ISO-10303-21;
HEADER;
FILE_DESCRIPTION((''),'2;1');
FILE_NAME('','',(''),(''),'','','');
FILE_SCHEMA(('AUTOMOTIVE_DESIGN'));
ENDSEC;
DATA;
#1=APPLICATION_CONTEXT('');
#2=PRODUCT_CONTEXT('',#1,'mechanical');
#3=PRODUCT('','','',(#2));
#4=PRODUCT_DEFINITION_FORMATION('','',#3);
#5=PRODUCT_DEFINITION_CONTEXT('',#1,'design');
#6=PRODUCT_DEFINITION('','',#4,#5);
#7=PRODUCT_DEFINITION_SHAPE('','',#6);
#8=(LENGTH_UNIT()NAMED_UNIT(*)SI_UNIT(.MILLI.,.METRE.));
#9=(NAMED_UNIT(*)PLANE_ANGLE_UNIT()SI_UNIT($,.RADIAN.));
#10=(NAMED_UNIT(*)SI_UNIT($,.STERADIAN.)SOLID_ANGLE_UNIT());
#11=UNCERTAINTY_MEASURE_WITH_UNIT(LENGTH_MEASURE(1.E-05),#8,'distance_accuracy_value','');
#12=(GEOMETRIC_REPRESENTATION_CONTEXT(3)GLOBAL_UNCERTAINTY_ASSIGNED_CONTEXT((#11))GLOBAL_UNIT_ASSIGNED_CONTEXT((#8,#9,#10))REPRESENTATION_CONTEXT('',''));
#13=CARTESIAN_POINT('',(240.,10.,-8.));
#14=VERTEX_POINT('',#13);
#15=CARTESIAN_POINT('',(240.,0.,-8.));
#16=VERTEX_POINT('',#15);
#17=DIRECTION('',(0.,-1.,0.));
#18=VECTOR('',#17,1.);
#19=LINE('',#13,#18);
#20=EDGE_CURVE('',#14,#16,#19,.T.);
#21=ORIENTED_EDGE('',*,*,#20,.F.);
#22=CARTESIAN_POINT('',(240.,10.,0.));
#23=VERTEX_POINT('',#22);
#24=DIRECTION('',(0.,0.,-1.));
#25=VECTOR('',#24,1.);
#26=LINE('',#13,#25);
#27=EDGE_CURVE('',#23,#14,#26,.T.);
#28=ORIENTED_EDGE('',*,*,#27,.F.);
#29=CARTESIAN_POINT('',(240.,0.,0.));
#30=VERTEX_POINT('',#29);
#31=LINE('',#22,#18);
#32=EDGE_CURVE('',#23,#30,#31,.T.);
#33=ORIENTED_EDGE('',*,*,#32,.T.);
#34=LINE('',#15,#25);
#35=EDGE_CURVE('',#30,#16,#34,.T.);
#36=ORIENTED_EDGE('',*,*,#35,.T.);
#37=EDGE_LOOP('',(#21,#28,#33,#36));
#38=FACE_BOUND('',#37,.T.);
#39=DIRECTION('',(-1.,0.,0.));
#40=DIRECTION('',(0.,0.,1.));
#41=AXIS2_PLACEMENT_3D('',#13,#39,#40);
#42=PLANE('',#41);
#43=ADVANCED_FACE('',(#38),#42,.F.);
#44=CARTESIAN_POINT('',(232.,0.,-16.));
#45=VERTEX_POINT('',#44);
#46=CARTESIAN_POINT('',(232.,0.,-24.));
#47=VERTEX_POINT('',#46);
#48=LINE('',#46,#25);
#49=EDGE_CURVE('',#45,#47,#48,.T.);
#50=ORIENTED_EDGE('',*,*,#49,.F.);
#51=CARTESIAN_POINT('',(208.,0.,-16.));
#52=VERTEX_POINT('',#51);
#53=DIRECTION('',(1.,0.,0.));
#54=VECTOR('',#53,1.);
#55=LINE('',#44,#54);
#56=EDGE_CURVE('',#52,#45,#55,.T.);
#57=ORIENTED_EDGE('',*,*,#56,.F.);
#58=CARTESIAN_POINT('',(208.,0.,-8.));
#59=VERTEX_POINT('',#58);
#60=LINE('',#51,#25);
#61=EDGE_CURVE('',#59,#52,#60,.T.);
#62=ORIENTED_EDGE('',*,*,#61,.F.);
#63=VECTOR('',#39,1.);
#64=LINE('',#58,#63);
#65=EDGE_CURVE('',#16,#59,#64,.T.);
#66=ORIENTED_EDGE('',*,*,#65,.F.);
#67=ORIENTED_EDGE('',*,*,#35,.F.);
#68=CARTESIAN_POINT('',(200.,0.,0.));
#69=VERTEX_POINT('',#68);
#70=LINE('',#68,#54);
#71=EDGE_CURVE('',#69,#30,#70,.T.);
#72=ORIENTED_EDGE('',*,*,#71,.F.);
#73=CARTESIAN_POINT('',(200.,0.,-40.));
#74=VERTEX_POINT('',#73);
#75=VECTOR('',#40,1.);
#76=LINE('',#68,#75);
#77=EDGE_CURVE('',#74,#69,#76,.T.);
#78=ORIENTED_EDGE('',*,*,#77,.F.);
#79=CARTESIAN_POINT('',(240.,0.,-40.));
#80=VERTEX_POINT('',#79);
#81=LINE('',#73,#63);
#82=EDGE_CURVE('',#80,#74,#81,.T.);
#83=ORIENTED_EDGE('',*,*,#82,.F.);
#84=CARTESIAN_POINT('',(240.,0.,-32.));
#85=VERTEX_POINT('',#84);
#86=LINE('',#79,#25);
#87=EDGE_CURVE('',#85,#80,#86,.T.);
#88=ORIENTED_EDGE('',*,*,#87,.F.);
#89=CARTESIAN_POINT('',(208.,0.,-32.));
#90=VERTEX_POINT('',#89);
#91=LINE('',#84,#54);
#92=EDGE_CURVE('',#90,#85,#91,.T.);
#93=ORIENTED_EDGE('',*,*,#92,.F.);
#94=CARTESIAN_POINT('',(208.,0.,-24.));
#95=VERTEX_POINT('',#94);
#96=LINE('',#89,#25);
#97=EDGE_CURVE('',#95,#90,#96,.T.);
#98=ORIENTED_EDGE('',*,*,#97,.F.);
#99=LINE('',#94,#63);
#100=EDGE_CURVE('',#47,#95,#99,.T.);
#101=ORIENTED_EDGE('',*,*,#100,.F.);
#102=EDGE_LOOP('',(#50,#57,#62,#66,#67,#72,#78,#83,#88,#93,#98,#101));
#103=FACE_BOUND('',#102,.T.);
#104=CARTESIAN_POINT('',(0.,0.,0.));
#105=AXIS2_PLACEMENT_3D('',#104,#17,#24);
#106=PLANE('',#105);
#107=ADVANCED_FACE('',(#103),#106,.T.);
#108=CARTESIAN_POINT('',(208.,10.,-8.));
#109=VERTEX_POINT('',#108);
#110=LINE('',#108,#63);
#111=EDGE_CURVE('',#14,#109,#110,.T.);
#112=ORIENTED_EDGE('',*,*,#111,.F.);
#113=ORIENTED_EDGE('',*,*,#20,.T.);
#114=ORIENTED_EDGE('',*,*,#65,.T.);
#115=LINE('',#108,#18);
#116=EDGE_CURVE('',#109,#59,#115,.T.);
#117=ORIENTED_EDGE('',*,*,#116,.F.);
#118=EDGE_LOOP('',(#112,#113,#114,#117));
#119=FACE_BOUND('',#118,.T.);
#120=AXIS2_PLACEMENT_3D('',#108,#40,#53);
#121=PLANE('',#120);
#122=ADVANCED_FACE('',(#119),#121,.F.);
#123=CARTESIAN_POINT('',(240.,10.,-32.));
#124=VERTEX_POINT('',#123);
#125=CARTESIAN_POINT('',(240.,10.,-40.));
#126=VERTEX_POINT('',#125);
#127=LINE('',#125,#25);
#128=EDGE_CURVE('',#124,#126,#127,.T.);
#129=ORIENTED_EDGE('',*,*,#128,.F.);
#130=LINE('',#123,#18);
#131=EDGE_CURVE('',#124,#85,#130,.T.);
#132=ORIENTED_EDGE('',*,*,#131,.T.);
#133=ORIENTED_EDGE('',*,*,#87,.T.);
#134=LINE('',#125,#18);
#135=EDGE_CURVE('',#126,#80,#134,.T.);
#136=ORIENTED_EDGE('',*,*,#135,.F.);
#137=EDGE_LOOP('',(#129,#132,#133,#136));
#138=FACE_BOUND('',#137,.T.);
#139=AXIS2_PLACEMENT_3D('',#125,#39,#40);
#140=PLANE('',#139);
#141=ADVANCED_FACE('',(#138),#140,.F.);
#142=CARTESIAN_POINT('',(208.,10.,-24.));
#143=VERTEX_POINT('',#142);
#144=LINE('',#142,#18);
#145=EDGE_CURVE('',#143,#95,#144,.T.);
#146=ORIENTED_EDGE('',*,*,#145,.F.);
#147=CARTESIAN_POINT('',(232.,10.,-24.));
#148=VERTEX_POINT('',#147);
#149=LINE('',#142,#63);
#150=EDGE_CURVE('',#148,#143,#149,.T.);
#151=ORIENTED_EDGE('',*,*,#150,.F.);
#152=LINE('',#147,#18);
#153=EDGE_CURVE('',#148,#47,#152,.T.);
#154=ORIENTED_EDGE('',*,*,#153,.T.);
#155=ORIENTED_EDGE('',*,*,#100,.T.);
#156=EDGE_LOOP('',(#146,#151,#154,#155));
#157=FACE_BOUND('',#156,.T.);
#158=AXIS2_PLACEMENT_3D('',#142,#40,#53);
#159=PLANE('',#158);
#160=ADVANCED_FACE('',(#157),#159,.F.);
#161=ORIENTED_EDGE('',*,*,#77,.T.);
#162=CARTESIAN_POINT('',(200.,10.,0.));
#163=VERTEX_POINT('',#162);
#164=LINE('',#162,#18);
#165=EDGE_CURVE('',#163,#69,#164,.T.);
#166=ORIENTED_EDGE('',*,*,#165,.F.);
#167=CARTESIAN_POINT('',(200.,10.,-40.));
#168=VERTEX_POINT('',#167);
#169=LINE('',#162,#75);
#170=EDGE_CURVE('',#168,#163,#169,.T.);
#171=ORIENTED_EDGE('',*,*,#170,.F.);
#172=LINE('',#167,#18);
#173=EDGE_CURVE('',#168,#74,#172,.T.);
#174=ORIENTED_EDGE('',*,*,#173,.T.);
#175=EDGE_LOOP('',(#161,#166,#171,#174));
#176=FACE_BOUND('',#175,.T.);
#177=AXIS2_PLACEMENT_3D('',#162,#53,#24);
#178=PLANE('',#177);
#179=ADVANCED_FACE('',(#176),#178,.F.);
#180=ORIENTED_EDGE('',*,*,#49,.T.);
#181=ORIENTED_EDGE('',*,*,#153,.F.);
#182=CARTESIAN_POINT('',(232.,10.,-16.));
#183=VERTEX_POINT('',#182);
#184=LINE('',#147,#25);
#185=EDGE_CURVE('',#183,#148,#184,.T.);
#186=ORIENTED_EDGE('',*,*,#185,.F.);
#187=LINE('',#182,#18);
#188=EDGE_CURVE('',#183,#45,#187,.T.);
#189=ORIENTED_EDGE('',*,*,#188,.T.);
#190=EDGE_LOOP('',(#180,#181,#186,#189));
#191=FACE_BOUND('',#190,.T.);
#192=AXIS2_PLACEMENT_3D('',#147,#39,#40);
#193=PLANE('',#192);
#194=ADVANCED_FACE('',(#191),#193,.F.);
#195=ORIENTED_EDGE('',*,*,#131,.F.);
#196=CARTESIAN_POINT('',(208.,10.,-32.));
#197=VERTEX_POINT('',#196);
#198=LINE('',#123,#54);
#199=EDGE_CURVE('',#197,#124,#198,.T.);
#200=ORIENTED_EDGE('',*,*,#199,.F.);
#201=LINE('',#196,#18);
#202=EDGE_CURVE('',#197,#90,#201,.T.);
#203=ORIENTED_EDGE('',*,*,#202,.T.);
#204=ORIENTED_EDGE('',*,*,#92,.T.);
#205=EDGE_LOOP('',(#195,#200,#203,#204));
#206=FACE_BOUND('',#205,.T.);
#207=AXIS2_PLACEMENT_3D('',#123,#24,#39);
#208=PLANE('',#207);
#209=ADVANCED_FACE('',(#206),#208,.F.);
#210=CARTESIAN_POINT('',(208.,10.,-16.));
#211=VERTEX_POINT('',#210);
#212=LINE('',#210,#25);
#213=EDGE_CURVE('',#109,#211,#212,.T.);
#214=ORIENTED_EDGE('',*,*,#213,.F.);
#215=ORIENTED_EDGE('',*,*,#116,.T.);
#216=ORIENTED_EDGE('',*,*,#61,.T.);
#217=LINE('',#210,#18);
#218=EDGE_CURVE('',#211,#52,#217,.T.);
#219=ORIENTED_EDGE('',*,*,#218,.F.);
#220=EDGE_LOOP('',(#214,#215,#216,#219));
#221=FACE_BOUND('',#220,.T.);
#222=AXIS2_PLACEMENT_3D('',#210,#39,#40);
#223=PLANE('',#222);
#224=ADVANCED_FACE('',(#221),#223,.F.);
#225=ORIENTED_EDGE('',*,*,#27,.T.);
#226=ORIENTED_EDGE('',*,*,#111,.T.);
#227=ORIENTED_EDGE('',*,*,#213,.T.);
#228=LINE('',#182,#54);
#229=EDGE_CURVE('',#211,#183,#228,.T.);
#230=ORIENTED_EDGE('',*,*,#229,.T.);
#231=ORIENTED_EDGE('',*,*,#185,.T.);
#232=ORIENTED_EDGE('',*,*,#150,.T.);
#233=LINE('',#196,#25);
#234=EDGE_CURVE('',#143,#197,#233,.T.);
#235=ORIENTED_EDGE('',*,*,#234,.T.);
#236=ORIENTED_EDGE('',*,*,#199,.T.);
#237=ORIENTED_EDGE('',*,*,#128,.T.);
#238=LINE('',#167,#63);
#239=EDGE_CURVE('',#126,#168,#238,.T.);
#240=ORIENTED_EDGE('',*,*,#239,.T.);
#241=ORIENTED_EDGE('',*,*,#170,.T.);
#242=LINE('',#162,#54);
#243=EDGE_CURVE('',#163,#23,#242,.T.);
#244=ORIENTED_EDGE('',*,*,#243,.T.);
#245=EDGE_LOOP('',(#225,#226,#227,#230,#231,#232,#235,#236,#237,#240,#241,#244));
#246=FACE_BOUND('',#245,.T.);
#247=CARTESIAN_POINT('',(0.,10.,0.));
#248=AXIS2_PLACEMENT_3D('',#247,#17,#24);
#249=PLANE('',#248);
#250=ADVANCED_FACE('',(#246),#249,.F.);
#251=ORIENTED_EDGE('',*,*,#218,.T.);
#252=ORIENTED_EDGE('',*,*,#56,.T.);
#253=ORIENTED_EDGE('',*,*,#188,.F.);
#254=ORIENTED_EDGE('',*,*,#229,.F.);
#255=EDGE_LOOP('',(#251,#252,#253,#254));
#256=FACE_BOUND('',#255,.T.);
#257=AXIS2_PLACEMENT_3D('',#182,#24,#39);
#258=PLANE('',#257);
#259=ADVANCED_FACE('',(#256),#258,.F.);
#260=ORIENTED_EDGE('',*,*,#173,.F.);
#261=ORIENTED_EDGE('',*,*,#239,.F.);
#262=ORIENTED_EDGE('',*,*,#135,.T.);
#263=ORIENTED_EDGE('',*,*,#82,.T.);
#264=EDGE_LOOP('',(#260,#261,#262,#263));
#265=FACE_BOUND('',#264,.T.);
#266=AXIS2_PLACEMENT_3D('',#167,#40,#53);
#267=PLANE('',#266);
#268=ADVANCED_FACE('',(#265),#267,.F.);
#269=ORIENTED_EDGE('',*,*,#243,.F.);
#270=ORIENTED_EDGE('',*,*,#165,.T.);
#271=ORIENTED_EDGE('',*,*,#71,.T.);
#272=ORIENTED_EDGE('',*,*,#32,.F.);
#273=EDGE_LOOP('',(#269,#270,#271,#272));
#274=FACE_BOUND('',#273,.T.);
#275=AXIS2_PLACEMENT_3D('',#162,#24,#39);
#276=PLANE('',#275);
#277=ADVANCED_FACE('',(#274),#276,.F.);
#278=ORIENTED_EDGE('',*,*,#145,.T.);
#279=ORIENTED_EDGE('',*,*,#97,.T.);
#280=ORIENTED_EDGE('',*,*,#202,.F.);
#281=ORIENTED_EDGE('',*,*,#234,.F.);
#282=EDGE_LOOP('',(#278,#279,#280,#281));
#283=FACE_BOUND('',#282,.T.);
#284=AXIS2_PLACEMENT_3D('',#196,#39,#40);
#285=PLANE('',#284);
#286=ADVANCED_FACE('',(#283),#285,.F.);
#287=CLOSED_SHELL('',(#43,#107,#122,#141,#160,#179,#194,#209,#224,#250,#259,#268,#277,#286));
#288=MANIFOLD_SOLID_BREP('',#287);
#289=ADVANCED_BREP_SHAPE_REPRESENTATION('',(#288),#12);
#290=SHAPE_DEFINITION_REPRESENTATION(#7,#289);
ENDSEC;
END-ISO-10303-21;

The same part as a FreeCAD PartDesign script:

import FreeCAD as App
import Part
import Sketcher


def add_polygon(sketch, points):
    """Adds a closed chain of lines whose ends are joined by coincident constraints."""
    first, n = sketch.GeometryCount, len(points)
    for a, b in zip(points, points[1:] + points[:1]):
        sketch.addGeometry(Part.LineSegment(App.Vector(*a, 0), App.Vector(*b, 0)), False)
    for i in range(n):
        sketch.addConstraint(Sketcher.Constraint("Coincident", first + i, 2, first + (i + 1) % n, 1))

doc = App.newDocument("Part")
body = doc.addObject("PartDesign::Body", "Body")

# Sketch on XZ plane
sketch1 = body.newObject("Sketcher::SketchObject", "Sketch")
sketch1.AttachmentSupport = (doc.getObject("XZ_Plane"), [""])
sketch1.MapMode = "FlatFace"
add_polygon(sketch1, [(200, 0), (240, 0), (240, -8), (208, -8), (208, -16), (232, -16), (232, -24), (208, -24), (208, -32), (240, -32), (240, -40), (200, -40)])  # lines 0-11
sketch1.addConstraint([
    Sketcher.Constraint("Horizontal", 0),
    Sketcher.Constraint("Vertical", 1),
    Sketcher.Constraint("Horizontal", 2),
    Sketcher.Constraint("Vertical", 3),
    Sketcher.Constraint("Horizontal", 4),
    Sketcher.Constraint("Vertical", 5),
    Sketcher.Constraint("Horizontal", 6),
    Sketcher.Constraint("Vertical", 7),
    Sketcher.Constraint("Horizontal", 8),
    Sketcher.Constraint("Vertical", 9),
    Sketcher.Constraint("Horizontal", 10),
    Sketcher.Constraint("Vertical", 11),
    Sketcher.Constraint("PointOnObject", 0, 2, -1),
    Sketcher.Constraint("Vertical", 3, 2, 6, 2),
    Sketcher.Constraint("Vertical", 1, 2, 8, 2),
    Sketcher.Constraint("Equal", 1, 3),
    Sketcher.Constraint("Equal", 3, 5),
    Sketcher.Constraint("Equal", 5, 7),
    Sketcher.Constraint("Equal", 7, 9),
    Sketcher.Constraint("Equal", 10, 11),
    Sketcher.Constraint("DistanceX", 0, 1, 0, 2, 40.0),
    Sketcher.Constraint("DistanceX", 2, 2, 2, 1, 32.0),
    Sketcher.Constraint("DistanceX", 4, 1, 4, 2, 24.0),
    Sketcher.Constraint("DistanceX", -1, 1, 0, 2, 240.0),
])
pad1 = body.newObject("PartDesign::Pad", "Pad")
pad1.Profile = sketch1
pad1.Length = 10
pad1.Reversed = True

doc.recompute()
